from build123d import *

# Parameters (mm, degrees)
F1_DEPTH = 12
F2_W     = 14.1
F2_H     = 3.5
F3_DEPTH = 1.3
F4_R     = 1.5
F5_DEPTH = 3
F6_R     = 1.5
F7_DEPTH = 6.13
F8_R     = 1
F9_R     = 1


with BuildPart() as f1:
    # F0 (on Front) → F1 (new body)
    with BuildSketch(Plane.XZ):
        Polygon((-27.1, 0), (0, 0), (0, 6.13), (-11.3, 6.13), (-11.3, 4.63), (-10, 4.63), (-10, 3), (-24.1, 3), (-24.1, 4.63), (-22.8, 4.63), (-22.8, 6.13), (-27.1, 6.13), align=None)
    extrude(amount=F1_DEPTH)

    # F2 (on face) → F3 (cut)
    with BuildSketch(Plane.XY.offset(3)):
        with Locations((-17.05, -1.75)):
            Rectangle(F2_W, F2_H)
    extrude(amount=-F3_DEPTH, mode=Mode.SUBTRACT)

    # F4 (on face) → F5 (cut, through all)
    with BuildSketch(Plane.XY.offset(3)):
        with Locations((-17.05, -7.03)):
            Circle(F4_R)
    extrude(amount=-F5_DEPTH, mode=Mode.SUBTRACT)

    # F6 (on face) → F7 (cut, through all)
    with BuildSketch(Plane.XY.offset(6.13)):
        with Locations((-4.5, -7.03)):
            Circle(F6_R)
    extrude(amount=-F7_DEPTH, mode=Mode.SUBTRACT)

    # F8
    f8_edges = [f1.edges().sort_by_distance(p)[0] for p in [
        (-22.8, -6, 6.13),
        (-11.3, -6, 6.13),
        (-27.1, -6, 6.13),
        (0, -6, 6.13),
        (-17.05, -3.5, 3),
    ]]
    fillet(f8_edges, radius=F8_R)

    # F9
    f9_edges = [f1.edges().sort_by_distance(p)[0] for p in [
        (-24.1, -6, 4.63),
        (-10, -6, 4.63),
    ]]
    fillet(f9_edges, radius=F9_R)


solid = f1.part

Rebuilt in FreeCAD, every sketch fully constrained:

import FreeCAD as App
import Part
import Sketcher
from FreeCAD import Vector
Q = App.Units.Quantity


def edges_at(feature, points):
    """Names of the edges that pass closest to the given points."""
    edges = feature.Shape.Edges
    near = lambda p: min(range(len(edges)), key=lambda i: edges[i].distToShape(Part.Vertex(*p))[0])
    return sorted({f"Edge{near(p) + 1}" for p in points})


def add_polygon(sketch, points):
    """Adds a closed chain of lines whose ends are joined by coincident constraints."""
    first, n = sketch.GeometryCount, len(points)
    for a, b in zip(points, points[1:] + points[:1]):
        sketch.addGeometry(Part.LineSegment(App.Vector(*a, 0), App.Vector(*b, 0)), False)
    for i in range(n):
        sketch.addConstraint(Sketcher.Constraint("Coincident", first + i, 2, first + (i + 1) % n, 1))

doc = App.newDocument("Part")
body = doc.addObject("PartDesign::Body", "Body")

# Sketch on XZ plane
sketch1 = body.newObject("Sketcher::SketchObject", "Sketch")
sketch1.AttachmentSupport = (doc.getObject("XZ_Plane"), [""])
sketch1.MapMode = "FlatFace"
add_polygon(sketch1, [(-27.1, 0), (0, 0), (0, 6.1), (-11.3, 6.1), (-11.3, 4.6), (-10, 4.6), (-10, 3), (-24.1, 3), (-24.1, 4.6), (-22.8, 4.6), (-22.8, 6.1), (-27.1, 6.1)])  # lines 0-11
sketch1.addConstraint([
    Sketcher.Constraint("Horizontal", 0),
    Sketcher.Constraint("Vertical", 1),
    Sketcher.Constraint("Horizontal", 2),
    Sketcher.Constraint("Vertical", 3),
    Sketcher.Constraint("Horizontal", 4),
    Sketcher.Constraint("Vertical", 5),
    Sketcher.Constraint("Horizontal", 6),
    Sketcher.Constraint("Vertical", 7),
    Sketcher.Constraint("Horizontal", 8),
    Sketcher.Constraint("Vertical", 9),
    Sketcher.Constraint("Horizontal", 10),
    Sketcher.Constraint("Vertical", 11),
    Sketcher.Constraint("Coincident", 0, 2, -1, 1),
    Sketcher.Constraint("Horizontal", 4, 2, 7, 2),
    Sketcher.Constraint("Horizontal", 2, 2, 9, 2),
    Sketcher.Constraint("Equal", 4, 8),
    Sketcher.Constraint("DistanceX", 0, 1, 0, 2, Q("27.1 mm")),
    Sketcher.Constraint("DistanceX", 2, 2, 2, 1, Q("11.3 mm")),
    Sketcher.Constraint("DistanceX", 4, 1, 4, 2, Q("1.3 mm")),
    Sketcher.Constraint("DistanceX", 6, 2, 6, 1, Q("14.1 mm")),
    Sketcher.Constraint("DistanceY", 3, 2, 3, 1, Q("1.5 mm")),
    Sketcher.Constraint("DistanceY", -1, 1, 5, 2, Q("3 mm")),
    Sketcher.Constraint("DistanceY", 1, 1, 1, 2, Q("6.13 mm")),
])
pad1 = body.newObject("PartDesign::Pad", "Pad")
pad1.Profile = sketch1
pad1.Length = 12

# Sketch on XY plane
sketch2 = body.newObject("Sketcher::SketchObject", "Sketch001")
sketch2.AttachmentSupport = (doc.getObject("XY_Plane"), [""])
sketch2.MapMode = "FlatFace"
sketch2.AttachmentOffset = App.Placement(Vector(0, 0, 3), App.Rotation())
add_polygon(sketch2, [(-24.1, 0), (-24.1, -3.5), (-10, -3.5), (-10, 0)])  # lines 0-3
sketch2.addConstraint([
    Sketcher.Constraint("Vertical", 0),
    Sketcher.Constraint("Horizontal", 1),
    Sketcher.Constraint("Vertical", 2),
    Sketcher.Constraint("Horizontal", 3),
    Sketcher.Constraint("PointOnObject", 2, 2, -1),
    Sketcher.Constraint("DistanceX", 1, 1, 1, 2, Q("14.1 mm")),
    Sketcher.Constraint("DistanceY", 0, 2, 0, 1, Q("3.5 mm")),
    Sketcher.Constraint("DistanceX", 1, 2, -1, 1, Q("10 mm")),
])
pocket1 = body.newObject("PartDesign::Pocket", "Pocket")
pocket1.Profile = sketch2
pocket1.Length = 1.3

# Sketch on XY plane
sketch3 = body.newObject("Sketcher::SketchObject", "Sketch002")
sketch3.AttachmentSupport = (doc.getObject("XY_Plane"), [""])
sketch3.MapMode = "FlatFace"
sketch3.AttachmentOffset = App.Placement(Vector(0, 0, 3), App.Rotation())
sketch3.addGeometry(Part.Circle(Vector(-17.1, -7, 0), Vector(0, 0, 1), 1.5), False)
sketch3.addConstraint([
    Sketcher.Constraint("Diameter", 0, Q("3 mm")),
    Sketcher.Constraint("DistanceX", 0, 3, -1, 1, Q("17.05 mm")),
    Sketcher.Constraint("DistanceY", 0, 3, -1, 1, Q("7.03 mm")),
])
pocket2 = body.newObject("PartDesign::Pocket", "Pocket001")
pocket2.Profile = sketch3
pocket2.Type = "ThroughAll"

# Sketch on XY plane
sketch4 = body.newObject("Sketcher::SketchObject", "Sketch003")
sketch4.AttachmentSupport = (doc.getObject("XY_Plane"), [""])
sketch4.MapMode = "FlatFace"
sketch4.AttachmentOffset = App.Placement(Vector(0, 0, 6.13), App.Rotation())
sketch4.addGeometry(Part.Circle(Vector(-4.5, -7, 0), Vector(0, 0, 1), 1.5), False)
sketch4.addConstraint([
    Sketcher.Constraint("Diameter", 0, Q("3 mm")),
    Sketcher.Constraint("DistanceX", 0, 3, -1, 1, Q("4.5 mm")),
    Sketcher.Constraint("DistanceY", 0, 3, -1, 1, Q("7.03 mm")),
])
pocket3 = body.newObject("PartDesign::Pocket", "Pocket002")
pocket3.Profile = sketch4
pocket3.Type = "ThroughAll"
doc.recompute()

fillet = body.newObject("PartDesign::Fillet", "Fillet")
fillet.Base = (pocket3, edges_at(pocket3, [
    (-22.8, -6, 6.13),
    (-11.3, -6, 6.13),
    (-27.1, -6, 6.13),
    (0, -6, 6.13),
    (-17.05, -3.5, 3),
]))
fillet.Radius = 1
doc.recompute()

fillet2 = body.newObject("PartDesign::Fillet", "Fillet001")
fillet2.Base = (fillet, edges_at(fillet, [(-24.1, -6, 4.63), (-10, -6, 4.63)]))
fillet2.Radius = 1

doc.recompute()
